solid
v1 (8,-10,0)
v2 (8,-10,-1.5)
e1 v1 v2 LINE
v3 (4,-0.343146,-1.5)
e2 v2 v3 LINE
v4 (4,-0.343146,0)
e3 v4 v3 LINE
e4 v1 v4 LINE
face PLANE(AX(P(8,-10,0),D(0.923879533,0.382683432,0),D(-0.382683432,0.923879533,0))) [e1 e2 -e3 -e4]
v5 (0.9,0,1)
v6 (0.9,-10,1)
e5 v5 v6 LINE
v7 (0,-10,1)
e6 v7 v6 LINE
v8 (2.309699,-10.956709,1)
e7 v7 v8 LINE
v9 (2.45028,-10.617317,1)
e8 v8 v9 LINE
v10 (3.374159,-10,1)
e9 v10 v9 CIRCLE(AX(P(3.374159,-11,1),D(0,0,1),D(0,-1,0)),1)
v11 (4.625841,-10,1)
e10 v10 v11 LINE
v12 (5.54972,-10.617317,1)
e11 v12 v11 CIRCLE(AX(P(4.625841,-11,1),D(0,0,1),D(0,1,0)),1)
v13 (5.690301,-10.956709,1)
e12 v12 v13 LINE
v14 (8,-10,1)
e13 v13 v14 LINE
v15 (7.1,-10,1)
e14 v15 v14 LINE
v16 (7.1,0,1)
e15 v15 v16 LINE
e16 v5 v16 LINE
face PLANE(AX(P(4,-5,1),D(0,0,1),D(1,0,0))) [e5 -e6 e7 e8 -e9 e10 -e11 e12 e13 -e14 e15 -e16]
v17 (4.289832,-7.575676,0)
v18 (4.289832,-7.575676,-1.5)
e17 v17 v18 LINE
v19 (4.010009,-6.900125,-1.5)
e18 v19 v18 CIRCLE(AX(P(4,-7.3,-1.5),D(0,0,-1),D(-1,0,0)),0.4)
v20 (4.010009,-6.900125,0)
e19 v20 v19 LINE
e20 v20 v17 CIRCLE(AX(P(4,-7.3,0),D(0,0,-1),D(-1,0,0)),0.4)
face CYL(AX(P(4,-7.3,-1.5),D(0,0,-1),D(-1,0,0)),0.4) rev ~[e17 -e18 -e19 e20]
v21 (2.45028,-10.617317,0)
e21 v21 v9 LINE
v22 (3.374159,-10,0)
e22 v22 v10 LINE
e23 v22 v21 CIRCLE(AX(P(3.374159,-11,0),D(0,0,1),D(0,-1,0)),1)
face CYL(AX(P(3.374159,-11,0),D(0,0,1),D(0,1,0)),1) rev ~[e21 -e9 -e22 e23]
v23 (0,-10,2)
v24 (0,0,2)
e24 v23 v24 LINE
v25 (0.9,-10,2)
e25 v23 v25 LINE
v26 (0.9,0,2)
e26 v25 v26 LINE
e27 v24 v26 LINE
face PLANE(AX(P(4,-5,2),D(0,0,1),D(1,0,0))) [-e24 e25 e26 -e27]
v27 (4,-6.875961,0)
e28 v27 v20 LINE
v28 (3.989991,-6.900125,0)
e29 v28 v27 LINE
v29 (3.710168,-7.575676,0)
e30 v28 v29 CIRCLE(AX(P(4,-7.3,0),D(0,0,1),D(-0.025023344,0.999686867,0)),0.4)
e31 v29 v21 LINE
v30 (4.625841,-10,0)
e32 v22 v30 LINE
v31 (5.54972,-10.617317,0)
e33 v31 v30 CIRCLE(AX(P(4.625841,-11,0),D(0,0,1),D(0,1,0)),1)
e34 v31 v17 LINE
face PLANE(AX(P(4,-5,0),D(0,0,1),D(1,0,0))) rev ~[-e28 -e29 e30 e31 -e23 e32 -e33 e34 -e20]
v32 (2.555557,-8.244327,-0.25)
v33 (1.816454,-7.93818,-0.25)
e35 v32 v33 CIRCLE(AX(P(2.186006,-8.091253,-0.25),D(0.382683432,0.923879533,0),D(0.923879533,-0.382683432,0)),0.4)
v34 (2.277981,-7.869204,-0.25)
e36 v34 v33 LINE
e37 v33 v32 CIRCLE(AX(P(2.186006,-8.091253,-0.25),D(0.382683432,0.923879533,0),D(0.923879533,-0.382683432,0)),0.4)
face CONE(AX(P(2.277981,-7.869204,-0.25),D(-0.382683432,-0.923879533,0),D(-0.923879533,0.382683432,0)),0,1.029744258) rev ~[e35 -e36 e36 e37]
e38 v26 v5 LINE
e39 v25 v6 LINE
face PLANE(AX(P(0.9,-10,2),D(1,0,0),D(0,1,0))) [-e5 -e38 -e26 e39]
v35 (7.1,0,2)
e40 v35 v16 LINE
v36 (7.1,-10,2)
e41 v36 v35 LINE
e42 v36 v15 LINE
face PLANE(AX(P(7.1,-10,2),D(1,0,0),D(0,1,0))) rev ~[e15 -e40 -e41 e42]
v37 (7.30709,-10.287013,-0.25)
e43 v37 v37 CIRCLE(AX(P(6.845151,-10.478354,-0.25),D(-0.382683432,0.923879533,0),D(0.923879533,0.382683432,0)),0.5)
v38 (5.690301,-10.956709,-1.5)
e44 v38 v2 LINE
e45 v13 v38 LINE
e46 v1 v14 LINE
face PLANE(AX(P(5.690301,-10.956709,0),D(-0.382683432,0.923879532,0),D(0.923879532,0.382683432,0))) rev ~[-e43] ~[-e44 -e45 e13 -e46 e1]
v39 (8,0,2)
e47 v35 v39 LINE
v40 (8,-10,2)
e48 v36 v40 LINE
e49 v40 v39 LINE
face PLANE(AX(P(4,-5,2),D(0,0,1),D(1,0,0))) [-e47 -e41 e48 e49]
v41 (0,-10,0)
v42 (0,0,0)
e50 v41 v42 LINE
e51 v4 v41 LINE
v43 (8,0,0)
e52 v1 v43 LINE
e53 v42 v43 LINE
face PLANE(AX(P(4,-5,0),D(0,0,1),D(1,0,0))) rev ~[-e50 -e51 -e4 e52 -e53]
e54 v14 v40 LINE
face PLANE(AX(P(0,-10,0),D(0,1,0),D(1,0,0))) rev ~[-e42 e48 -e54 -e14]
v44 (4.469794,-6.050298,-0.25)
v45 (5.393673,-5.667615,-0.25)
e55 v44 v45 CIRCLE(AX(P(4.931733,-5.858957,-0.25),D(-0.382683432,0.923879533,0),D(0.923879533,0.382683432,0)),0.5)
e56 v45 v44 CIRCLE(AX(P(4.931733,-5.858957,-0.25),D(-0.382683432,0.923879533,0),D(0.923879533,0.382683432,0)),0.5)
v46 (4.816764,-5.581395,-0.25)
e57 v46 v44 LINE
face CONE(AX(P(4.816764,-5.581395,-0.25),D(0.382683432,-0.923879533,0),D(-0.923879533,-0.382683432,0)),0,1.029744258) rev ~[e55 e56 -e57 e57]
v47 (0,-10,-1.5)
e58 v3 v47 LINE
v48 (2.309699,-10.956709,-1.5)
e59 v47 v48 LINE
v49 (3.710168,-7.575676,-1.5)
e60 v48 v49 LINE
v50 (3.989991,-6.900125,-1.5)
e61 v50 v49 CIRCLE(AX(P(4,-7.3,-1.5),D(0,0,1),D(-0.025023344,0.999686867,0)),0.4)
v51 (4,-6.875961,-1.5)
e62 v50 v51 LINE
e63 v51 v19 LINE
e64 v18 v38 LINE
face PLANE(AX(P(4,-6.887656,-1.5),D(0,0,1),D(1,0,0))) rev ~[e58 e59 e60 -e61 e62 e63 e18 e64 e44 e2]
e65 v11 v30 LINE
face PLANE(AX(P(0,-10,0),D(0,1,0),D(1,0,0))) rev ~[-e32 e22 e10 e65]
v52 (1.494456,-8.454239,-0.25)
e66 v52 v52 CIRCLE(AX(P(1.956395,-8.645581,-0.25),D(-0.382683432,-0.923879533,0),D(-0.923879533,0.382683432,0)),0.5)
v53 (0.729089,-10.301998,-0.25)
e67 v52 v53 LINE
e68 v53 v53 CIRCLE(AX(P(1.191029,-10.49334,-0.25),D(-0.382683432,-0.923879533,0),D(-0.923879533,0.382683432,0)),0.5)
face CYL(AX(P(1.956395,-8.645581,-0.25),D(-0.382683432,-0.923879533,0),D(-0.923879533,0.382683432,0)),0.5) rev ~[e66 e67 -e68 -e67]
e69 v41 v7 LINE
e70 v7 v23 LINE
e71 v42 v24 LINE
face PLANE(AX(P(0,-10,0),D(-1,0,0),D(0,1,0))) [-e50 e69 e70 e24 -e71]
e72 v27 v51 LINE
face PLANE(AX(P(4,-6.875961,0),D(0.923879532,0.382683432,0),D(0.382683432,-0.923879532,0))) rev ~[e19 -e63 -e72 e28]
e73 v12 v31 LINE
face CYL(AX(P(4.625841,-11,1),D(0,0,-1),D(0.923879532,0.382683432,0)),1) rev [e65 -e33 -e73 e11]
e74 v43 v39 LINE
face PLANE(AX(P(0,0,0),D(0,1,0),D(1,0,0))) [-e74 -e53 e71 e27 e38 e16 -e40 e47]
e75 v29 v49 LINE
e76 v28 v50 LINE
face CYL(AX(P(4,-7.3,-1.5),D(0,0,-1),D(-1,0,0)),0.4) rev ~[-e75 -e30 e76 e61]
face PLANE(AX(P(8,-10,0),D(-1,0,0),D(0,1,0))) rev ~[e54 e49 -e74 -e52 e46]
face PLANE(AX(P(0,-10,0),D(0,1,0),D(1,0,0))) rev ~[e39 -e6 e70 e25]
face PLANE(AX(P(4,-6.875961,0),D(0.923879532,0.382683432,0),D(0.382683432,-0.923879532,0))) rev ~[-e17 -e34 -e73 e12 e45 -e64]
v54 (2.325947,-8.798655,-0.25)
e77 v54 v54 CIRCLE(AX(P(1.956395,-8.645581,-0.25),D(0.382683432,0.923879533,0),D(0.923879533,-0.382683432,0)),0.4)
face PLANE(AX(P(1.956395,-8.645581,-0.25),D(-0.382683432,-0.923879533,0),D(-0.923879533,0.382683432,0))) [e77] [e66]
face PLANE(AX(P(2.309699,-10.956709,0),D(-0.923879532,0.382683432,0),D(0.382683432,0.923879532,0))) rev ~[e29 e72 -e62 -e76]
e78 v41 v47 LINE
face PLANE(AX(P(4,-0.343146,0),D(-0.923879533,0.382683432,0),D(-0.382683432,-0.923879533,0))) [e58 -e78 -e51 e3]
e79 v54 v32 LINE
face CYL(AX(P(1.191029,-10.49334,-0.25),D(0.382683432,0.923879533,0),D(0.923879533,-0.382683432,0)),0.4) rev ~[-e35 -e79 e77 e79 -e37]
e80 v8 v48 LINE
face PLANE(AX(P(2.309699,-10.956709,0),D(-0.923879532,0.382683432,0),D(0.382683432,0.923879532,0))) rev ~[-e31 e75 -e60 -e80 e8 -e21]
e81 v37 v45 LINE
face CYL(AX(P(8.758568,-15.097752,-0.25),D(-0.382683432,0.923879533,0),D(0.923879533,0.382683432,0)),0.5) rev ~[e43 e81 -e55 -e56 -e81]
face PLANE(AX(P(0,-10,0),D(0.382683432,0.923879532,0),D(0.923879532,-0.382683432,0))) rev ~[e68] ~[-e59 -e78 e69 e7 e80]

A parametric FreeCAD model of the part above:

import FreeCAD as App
import Part
import Sketcher
from FreeCAD import Vector
Q = App.Units.Quantity


def edges_at(feature, points):
    """Names of the edges that pass closest to the given points."""
    edges = feature.Shape.Edges
    near = lambda p: min(range(len(edges)), key=lambda i: edges[i].distToShape(Part.Vertex(*p))[0])
    return sorted({f"Edge{near(p) + 1}" for p in points})

doc = App.newDocument("Part")
body = doc.addObject("PartDesign::Body", "Body")

# Sketch on XY plane
sketch1 = body.newObject("Sketcher::SketchObject", "Sketch")
sketch1.AttachmentSupport = (doc.getObject("XY_Plane"), [""])
sketch1.MapMode = "FlatFace"
sketch1.addGeometry([
    Part.LineSegment(Vector(0, 0, 0), Vector(0, -10, 0)),
    Part.LineSegment(Vector(0, -10, 0), Vector(8, -10, 0)),
    Part.LineSegment(Vector(8, -10, 0), Vector(8, 0, 0)),
    Part.LineSegment(Vector(8, 0, 0), Vector(0, 0, 0)),
], False)
sketch1.addConstraint([
    Sketcher.Constraint("Coincident", 0, 2, 1, 1),
    Sketcher.Constraint("Coincident", 1, 2, 2, 1),
    Sketcher.Constraint("Coincident", 2, 2, 3, 1),
    Sketcher.Constraint("Coincident", 3, 2, 0, 1),
    Sketcher.Constraint("Vertical", 0),
    Sketcher.Constraint("Horizontal", 1),
    Sketcher.Constraint("Vertical", 2),
    Sketcher.Constraint("Horizontal", 3),
    Sketcher.Constraint("Coincident", 3, 2, -1, 1),
    Sketcher.Constraint("DistanceX", 1, 1, 1, 2, 8.0),
    Sketcher.Constraint("DistanceY", 0, 2, 0, 1, 10.0),
])
pad1 = body.newObject("PartDesign::Pad", "Pad")
pad1.Profile = sketch1
pad1.Length = 2

# Sketch on XY plane
sketch2 = body.newObject("Sketcher::SketchObject", "Sketch001")
sketch2.AttachmentSupport = (doc.getObject("XY_Plane"), [""])
sketch2.MapMode = "FlatFace"
sketch2.AttachmentOffset = App.Placement(Vector(0, 0, 2), App.Rotation())
sketch2.addGeometry([
    Part.LineSegment(Vector(1, 0, 0), Vector(1, -10, 0)),
    Part.LineSegment(Vector(1, -10, 0), Vector(7, -10, 0)),
    Part.LineSegment(Vector(7, -10, 0), Vector(7, 0, 0)),
    Part.LineSegment(Vector(7, 0, 0), Vector(1, 0, 0)),
], False)
sketch2.addConstraint([
    Sketcher.Constraint("Coincident", 0, 2, 1, 1),
    Sketcher.Constraint("Coincident", 1, 2, 2, 1),
    Sketcher.Constraint("Coincident", 2, 2, 3, 1),
    Sketcher.Constraint("Coincident", 3, 2, 0, 1),
    Sketcher.Constraint("Vertical", 0),
    Sketcher.Constraint("Horizontal", 1),
    Sketcher.Constraint("Vertical", 2),
    Sketcher.Constraint("Horizontal", 3),
    Sketcher.Constraint("PointOnObject", 2, 2, -1),
    Sketcher.Constraint("DistanceY", 0, 2, 0, 1, 10.0),
    Sketcher.Constraint("DistanceX", 1, 1, 1, 2, 6.2),
    Sketcher.Constraint("DistanceX", -1, 1, 0, 2, 0.9),
])
pocket1 = body.newObject("PartDesign::Pocket", "Pocket")
pocket1.Profile = sketch2
pocket1.Length = 1

# Sketch on XY plane
sketch3 = body.newObject("Sketcher::SketchObject", "Sketch002")
sketch3.AttachmentSupport = (doc.getObject("XY_Plane"), [""])
sketch3.MapMode = "FlatFace"
sketch3.addGeometry([
    Part.LineSegment(Vector(4, -0.3, 0), Vector(8, -10, 0)),  # 0
    Part.LineSegment(Vector(8, -10, 0), Vector(5.7, -11, 0)),  # 1
    Part.LineSegment(Vector(5.7, -11, 0), Vector(4, -6.9, 0)),  # 2
    Part.LineSegment(Vector(4, -6.9, 0), Vector(2.3, -11, 0)),  # 3
    Part.LineSegment(Vector(2.3, -11, 0), Vector(0, -10, 0)),  # 4
    Part.LineSegment(Vector(0, -10, 0), Vector(4, -0.3, 0)),  # 5
], False)
sketch3.addConstraint([
    Sketcher.Constraint("Coincident", 0, 2, 1, 1),
    Sketcher.Constraint("Coincident", 1, 2, 2, 1),
    Sketcher.Constraint("Coincident", 2, 2, 3, 1),
    Sketcher.Constraint("Coincident", 3, 2, 4, 1),
    Sketcher.Constraint("Coincident", 4, 2, 5, 1),
    Sketcher.Constraint("Coincident", 5, 2, 0, 1),
    Sketcher.Constraint("PointOnObject", 4, 2, -2),
    Sketcher.Constraint("Perpendicular", 0, 1),
    Sketcher.Constraint("Perpendicular", 1, 2),
    Sketcher.Constraint("Perpendicular", 3, 4),
    Sketcher.Constraint("Perpendicular", 4, 5),
    Sketcher.Constraint("Horizontal", 1, 2, 3, 2),
    Sketcher.Constraint("Horizontal", 0, 2, 4, 2),
    Sketcher.Constraint("Vertical", 2, 2, 5, 2),
    Sketcher.Constraint("DistanceX", -1, 1, 0, 2, 8.0),
    Sketcher.Constraint("DistanceY", 0, 2, -1, 1, 10.0),
    Sketcher.Constraint("Angle", 0, Q("-67.5 deg")),
    Sketcher.Constraint("Distance", 1, 2.5),
])
pad2 = body.newObject("PartDesign::Pad", "Pad001")
pad2.Profile = sketch3
pad2.Type = "TwoLengths"
pad2.Length = 1.5
pad2.Length2 = 1
pad2.Reversed = True

# Sketch on an angled plane
sketch4 = body.newObject("Sketcher::SketchObject", "Sketch003")
sketch4.Placement = App.Placement(Vector(-3.535534, -8.535534, 0), App.Rotation(Vector(-0.923879533, 0.382683432, 0), Vector(0, 0, -1.000000001), Vector(-0.382683432, -0.923879533, 0), "ZXY"))
sketch4.addGeometry(Part.Circle(Vector(-5.12, 0.25, 0), Vector(0, 0, 1), 0.4), False)
sketch4.addConstraint([
    Sketcher.Constraint("Diameter", 0, 0.8),
    Sketcher.Constraint("DistanceY", -1, 1, 0, 3, 0.25),
    Sketcher.Constraint("DistanceX", 0, 3, -1, 1, 5.115994),
])
doc.recompute()
hole = body.newObject("PartDesign::Hole", "Hole")
hole.Profile = sketch4
hole.ThreadType = "None"
hole.Diameter = 0.8
hole.DepthType = "Dimension"
hole.Depth = 2.6
hole.DrillPoint = "Angled"
hole.DrillPointAngle = 118
hole.HoleCutType = "Counterbore"
hole.HoleCutDiameter = 1
hole.HoleCutDepth = 2

# Sketch on an angled plane
sketch5 = body.newObject("Sketcher::SketchObject", "Sketch004")
sketch5.Placement = App.Placement(Vector(4.707107, -11.363961, 0), App.Rotation(Vector(-0.923879533, -0.382683432, 0), Vector(0, 0, -1.000000001), Vector(0.382683432, -0.923879533, 0), "ZXY"))
sketch5.addGeometry(Part.Circle(Vector(-2.3, 0.2, 0), Vector(0, 0, 1), 0.5), False)
sketch5.addConstraint([
    Sketcher.Constraint("Diameter", 0, 1.0),
    Sketcher.Constraint("DistanceY", -1, 1, 0, 3, 0.25),
    Sketcher.Constraint("DistanceX", 0, 3, -1, 1, 2.314202),
])
doc.recompute()
hole2 = body.newObject("PartDesign::Hole", "Hole001")
hole2.Profile = sketch5
hole2.ThreadType = "None"
hole2.Diameter = 1
hole2.DepthType = "Dimension"
hole2.Depth = 5
hole2.DrillPoint = "Angled"
hole2.DrillPointAngle = 118

# Sketch on XY plane
sketch6 = body.newObject("Sketcher::SketchObject", "Sketch005")
sketch6.AttachmentSupport = (doc.getObject("XY_Plane"), [""])
sketch6.MapMode = "FlatFace"
sketch6.AttachmentOffset = App.Placement(Vector(0, 0, -1.5), App.Rotation())
sketch6.addGeometry(Part.Circle(Vector(4, -7.3, 0), Vector(0, 0, 1), 0.4), False)
sketch6.addConstraint([
    Sketcher.Constraint("Diameter", 0, 0.8),
    Sketcher.Constraint("DistanceX", -1, 1, 0, 3, 4.0),
    Sketcher.Constraint("DistanceY", 0, 3, -1, 1, 7.3),
])
pocket2 = body.newObject("PartDesign::Pocket", "Pocket001")
pocket2.Profile = sketch6
pocket2.Length = 1.5
pocket2.Reversed = True
doc.recompute()

fillet = body.newObject("PartDesign::Fillet", "Fillet")
fillet.Base = (pocket2, edges_at(pocket2, [(2.706, -10, 0.5), (5.294, -10, 0.5)]))
fillet.Radius = 1

doc.recompute()
